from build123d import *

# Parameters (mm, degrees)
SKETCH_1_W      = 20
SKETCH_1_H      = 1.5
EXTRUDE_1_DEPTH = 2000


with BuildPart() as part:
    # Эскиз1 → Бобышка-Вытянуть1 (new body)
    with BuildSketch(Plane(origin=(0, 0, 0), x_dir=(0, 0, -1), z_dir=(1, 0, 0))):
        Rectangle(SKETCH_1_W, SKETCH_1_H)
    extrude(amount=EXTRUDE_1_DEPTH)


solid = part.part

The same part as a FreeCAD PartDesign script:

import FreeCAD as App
import Part
import Sketcher

V = App.Vector
Q = App.Units.Quantity


def add_polygon(sketch, points):
    """Adds a closed chain of lines whose ends are joined by coincident constraints."""
    first, n = sketch.GeometryCount, len(points)
    for a, b in zip(points, points[1:] + points[:1]):
        sketch.addGeometry(Part.LineSegment(App.Vector(*a, 0), App.Vector(*b, 0)), False)
    for i in range(n):
        sketch.addConstraint(Sketcher.Constraint("Coincident", first + i, 2, first + (i + 1) % n, 1))

doc = App.newDocument("Part")
body = doc.addObject("PartDesign::Body", "Body")

sketch1 = doc.addObject("Sketcher::SketchObject", "Sketch")
body.addObject(sketch1)
sketch1.AttachmentSupport = (doc.YZ_Plane, [""])
sketch1.MapMode = "FlatFace"
add_polygon(sketch1, [(0.8, 10), (-0.8, 10), (-0.8, -10), (0.8, -10)])
sketch1.addConstraint(Sketcher.Constraint("Horizontal", 0))
sketch1.addConstraint(Sketcher.Constraint("Vertical", 1))
sketch1.addConstraint(Sketcher.Constraint("Horizontal", 2))
sketch1.addConstraint(Sketcher.Constraint("Vertical", 3))
sketch1.addConstraint(Sketcher.Constraint("Symmetric", 0, 2, 2, 2, -1, 1))
sketch1.addConstraint(Sketcher.Constraint("DistanceY", 1, 2, 1, 1, Q("20 mm")))
sketch1.addConstraint(Sketcher.Constraint("DistanceX", 0, 2, 0, 1, Q("1.5 mm")))
pad1 = doc.addObject("PartDesign::Pad", "Pad")
body.addObject(pad1)
pad1.Profile = sketch1
pad1.Length = 2000

doc.recompute()
